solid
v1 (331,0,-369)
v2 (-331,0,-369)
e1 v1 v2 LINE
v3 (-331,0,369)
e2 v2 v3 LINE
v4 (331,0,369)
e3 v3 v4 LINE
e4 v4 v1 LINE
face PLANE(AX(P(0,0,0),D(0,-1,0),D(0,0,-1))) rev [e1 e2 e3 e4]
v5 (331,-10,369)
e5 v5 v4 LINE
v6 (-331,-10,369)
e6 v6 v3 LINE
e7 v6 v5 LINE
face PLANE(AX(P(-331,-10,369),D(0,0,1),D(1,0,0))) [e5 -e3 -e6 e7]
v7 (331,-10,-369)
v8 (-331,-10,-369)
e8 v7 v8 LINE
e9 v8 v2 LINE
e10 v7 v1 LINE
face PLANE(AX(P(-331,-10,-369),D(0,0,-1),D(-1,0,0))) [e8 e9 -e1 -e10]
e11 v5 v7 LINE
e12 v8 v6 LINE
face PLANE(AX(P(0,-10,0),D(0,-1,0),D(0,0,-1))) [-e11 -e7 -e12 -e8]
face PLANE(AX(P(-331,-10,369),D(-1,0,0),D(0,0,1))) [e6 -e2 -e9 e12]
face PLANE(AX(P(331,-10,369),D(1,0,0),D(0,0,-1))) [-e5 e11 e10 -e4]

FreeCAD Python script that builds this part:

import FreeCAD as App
import Part
import Sketcher
Q = App.Units.Quantity


def add_polygon(sketch, points):
    """Adds a closed chain of lines whose ends are joined by coincident constraints."""
    first, n = sketch.GeometryCount, len(points)
    for a, b in zip(points, points[1:] + points[:1]):
        sketch.addGeometry(Part.LineSegment(App.Vector(*a, 0), App.Vector(*b, 0)), False)
    for i in range(n):
        sketch.addConstraint(Sketcher.Constraint("Coincident", first + i, 2, first + (i + 1) % n, 1))

doc = App.newDocument("Part")
body = doc.addObject("PartDesign::Body", "Body")

sketch1 = body.newObject("Sketcher::SketchObject", "Sketch")
sketch1.AttachmentSupport = (doc.getObject("XZ_Plane"), [""])
sketch1.MapMode = "FlatFace"
add_polygon(sketch1, [(-331, -369), (-331, 369), (331, 369), (331, -369)])
sketch1.addConstraint([
    Sketcher.Constraint("Vertical", 0),
    Sketcher.Constraint("Horizontal", 1),
    Sketcher.Constraint("Vertical", 2),
    Sketcher.Constraint("Horizontal", 3),
    Sketcher.Constraint("Symmetric", 0, 2, 2, 2, -1, 1),
    Sketcher.Constraint("DistanceX", 1, 1, 1, 2, Q("662 mm")),
    Sketcher.Constraint("DistanceY", 0, 1, 0, 2, Q("738 mm")),
])
pad1 = body.newObject("PartDesign::Pad", "Pad")
pad1.Profile = sketch1
pad1.Length = 10

doc.recompute()
